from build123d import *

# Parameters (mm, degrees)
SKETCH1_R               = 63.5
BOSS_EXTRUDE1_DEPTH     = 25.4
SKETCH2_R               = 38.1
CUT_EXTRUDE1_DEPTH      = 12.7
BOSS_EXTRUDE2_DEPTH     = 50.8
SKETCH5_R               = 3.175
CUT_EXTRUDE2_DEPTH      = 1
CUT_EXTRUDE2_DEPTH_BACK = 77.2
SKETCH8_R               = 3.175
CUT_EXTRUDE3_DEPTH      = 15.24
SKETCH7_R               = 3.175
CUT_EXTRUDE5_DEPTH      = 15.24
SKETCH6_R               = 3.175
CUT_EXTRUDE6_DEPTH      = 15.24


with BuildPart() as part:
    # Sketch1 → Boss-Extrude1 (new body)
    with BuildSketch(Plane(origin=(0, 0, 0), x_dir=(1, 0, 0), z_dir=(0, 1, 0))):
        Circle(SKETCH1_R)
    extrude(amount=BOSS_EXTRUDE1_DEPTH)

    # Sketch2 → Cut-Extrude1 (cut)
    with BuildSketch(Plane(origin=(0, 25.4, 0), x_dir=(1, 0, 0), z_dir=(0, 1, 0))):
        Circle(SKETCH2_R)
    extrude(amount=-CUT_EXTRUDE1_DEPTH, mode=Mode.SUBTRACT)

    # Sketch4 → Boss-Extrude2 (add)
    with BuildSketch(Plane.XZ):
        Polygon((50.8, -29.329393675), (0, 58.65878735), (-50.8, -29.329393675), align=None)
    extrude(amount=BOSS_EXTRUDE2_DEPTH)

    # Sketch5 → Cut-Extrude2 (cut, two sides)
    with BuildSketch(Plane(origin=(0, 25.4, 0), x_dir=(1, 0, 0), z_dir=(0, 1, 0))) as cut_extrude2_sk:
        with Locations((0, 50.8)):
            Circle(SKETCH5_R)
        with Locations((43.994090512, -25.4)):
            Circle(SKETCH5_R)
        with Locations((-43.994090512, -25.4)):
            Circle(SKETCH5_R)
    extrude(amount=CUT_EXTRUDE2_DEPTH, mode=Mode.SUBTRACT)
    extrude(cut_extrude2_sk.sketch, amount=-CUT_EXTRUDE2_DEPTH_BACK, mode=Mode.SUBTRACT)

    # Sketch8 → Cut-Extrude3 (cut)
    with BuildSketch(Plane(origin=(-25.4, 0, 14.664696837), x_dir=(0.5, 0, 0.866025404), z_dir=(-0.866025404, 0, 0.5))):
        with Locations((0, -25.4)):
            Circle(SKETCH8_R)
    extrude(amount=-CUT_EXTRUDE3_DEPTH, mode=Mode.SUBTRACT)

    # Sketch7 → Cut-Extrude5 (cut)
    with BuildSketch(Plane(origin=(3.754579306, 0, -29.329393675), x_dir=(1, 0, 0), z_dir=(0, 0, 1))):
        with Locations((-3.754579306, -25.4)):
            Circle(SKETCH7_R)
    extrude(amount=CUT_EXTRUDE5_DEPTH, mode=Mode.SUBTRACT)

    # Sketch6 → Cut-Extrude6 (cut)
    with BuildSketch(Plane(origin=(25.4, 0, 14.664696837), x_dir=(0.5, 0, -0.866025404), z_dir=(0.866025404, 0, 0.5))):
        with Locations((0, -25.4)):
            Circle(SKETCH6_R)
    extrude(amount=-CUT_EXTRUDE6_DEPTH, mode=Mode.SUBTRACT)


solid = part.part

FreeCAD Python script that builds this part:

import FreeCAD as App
import Part
import Sketcher
from FreeCAD import Vector
Q = App.Units.Quantity


def add_polygon(sketch, points):
    """Adds a closed chain of lines whose ends are joined by coincident constraints."""
    first, n = sketch.GeometryCount, len(points)
    for a, b in zip(points, points[1:] + points[:1]):
        sketch.addGeometry(Part.LineSegment(App.Vector(*a, 0), App.Vector(*b, 0)), False)
    for i in range(n):
        sketch.addConstraint(Sketcher.Constraint("Coincident", first + i, 2, first + (i + 1) % n, 1))

doc = App.newDocument("Part")
body = doc.addObject("PartDesign::Body", "Body")

# Sketch on XZ plane
sketch1 = doc.addObject("Sketcher::SketchObject", "Sketch")
body.addObject(sketch1)
sketch1.AttachmentSupport = (doc.XZ_Plane, [""])
sketch1.MapMode = "FlatFace"
sketch1.addGeometry(Part.Circle(Vector(0, 0, 0), Vector(0, 0, 1), 64), False)
sketch1.addConstraint([
    Sketcher.Constraint("Coincident", 0, 3, -1, 1),
    Sketcher.Constraint("Diameter", 0, Q("5 in")),
])
pad1 = doc.addObject("PartDesign::Pad", "Pad")
body.addObject(pad1)
pad1.Profile = sketch1
pad1.Length = Q("1 in")
pad1.Reversed = True

# Sketch on XZ plane
sketch2 = doc.addObject("Sketcher::SketchObject", "Sketch001")
body.addObject(sketch2)
sketch2.AttachmentSupport = (doc.XZ_Plane, [""])
sketch2.MapMode = "FlatFace"
sketch2.AttachmentOffset = App.Placement(Vector(0, 0, -1 * 25.4), App.Rotation())
sketch2.addGeometry(Part.Circle(Vector(0, 0, 0), Vector(0, 0, 1), 38), False)
sketch2.addConstraint([
    Sketcher.Constraint("Coincident", 0, 3, -1, 1),
    Sketcher.Constraint("Diameter", 0, Q("3 in")),
])
pocket1 = doc.addObject("PartDesign::Pocket", "Pocket")
body.addObject(pocket1)
pocket1.Profile = sketch2
pocket1.Length = Q("0.5 in")
pocket1.Reversed = True

# Sketch on XZ plane
sketch3 = doc.addObject("Sketcher::SketchObject", "Sketch002")
body.addObject(sketch3)
sketch3.AttachmentSupport = (doc.XZ_Plane, [""])
sketch3.MapMode = "FlatFace"
add_polygon(sketch3, [(51, -29), (0, 59), (-51, -29)])  # lines 0-2
sketch3.addConstraint([
    Sketcher.Constraint("Horizontal", 2),
    Sketcher.Constraint("PointOnObject", 0, 2, -2),
    Sketcher.Constraint("Equal", 0, 1),
    Sketcher.Constraint("DistanceX", 2, 1, 2, 2, Q("4 in")),
    Sketcher.Constraint("Distance", 0, Q("4 in")),
    Sketcher.Constraint("DistanceY", -1, 1, 0, 2, Q("58.658787 mm")),
])
pad2 = doc.addObject("PartDesign::Pad", "Pad001")
body.addObject(pad2)
pad2.Profile = sketch3
pad2.Length = Q("2 in")

# Sketch on XZ plane
sketch4 = doc.addObject("Sketcher::SketchObject", "Sketch003")
body.addObject(sketch4)
sketch4.AttachmentSupport = (doc.XZ_Plane, [""])
sketch4.MapMode = "FlatFace"
sketch4.AttachmentOffset = App.Placement(Vector(0, 0, -1 * 25.4), App.Rotation())
sketch4.addGeometry([
    Part.Circle(Vector(0, -50.8, 0), Vector(0, 0, 1), 3.2),
    Part.Circle(Vector(44, 25.4, 0), Vector(0, 0, 1), 3.2),
    Part.Circle(Vector(-44, 25.4, 0), Vector(0, 0, 1), 3.2),
], False)
sketch4.addConstraint([
    Sketcher.Constraint("Equal", 0, 1),
    Sketcher.Constraint("Equal", 1, 2),
    Sketcher.Constraint("Symmetric", 1, 3, 2, 3, -2),
    Sketcher.Constraint("PointOnObject", 0, 3, -2),
    Sketcher.Constraint("Diameter", 0, Q("0.25 in")),
    Sketcher.Constraint("DistanceY", 0, 3, -1, 1, Q("2 in")),
    Sketcher.Constraint("DistanceY", -1, 1, 1, 3, Q("1 in")),
    Sketcher.Constraint("DistanceX", -1, 1, 1, 3, Q("43.994091 mm")),
])
pocket2 = doc.addObject("PartDesign::Pocket", "Pocket001")
body.addObject(pocket2)
pocket2.Profile = sketch4
pocket2.Type = "ThroughAll"
pocket2.Midplane = True

# Sketch on an angled plane
sketch5 = doc.addObject("Sketcher::SketchObject", "Sketch004")
body.addObject(sketch5)
sketch5.Placement = App.Placement(Vector(-25.4, 0, 14.664697), App.Rotation(Vector(0.5, 0, 0.866025404), Vector(0, 1, 0), Vector(-0.866025404, 0, 0.5), "ZXY"))
sketch5.addGeometry(Part.Circle(Vector(0, -25.4, 0), Vector(0, 0, 1), 3.2), False)
sketch5.addConstraint([
    Sketcher.Constraint("PointOnObject", 0, 3, -2),
    Sketcher.Constraint("Diameter", 0, Q("0.25 in")),
    Sketcher.Constraint("DistanceY", 0, 3, -1, 1, Q("1 in")),
])
pocket3 = doc.addObject("PartDesign::Pocket", "Pocket002")
body.addObject(pocket3)
pocket3.Profile = sketch5
pocket3.Length = Q("0.6 in")

# Sketch on XY plane
sketch6 = doc.addObject("Sketcher::SketchObject", "Sketch005")
body.addObject(sketch6)
sketch6.AttachmentSupport = (doc.XY_Plane, [""])
sketch6.MapMode = "FlatFace"
sketch6.AttachmentOffset = App.Placement(Vector(0, 0, -29.329394), App.Rotation())
sketch6.addGeometry(Part.Circle(Vector(0, -25.4, 0), Vector(0, 0, 1), 3.2), False)
sketch6.addConstraint([
    Sketcher.Constraint("PointOnObject", 0, 3, -2),
    Sketcher.Constraint("Diameter", 0, Q("0.25 in")),
    Sketcher.Constraint("DistanceY", 0, 3, -1, 1, Q("1 in")),
])
pocket4 = doc.addObject("PartDesign::Pocket", "Pocket003")
body.addObject(pocket4)
pocket4.Profile = sketch6
pocket4.Length = Q("0.6 in")
pocket4.Reversed = True

# Sketch on an angled plane
sketch7 = doc.addObject("Sketcher::SketchObject", "Sketch006")
body.addObject(sketch7)
sketch7.Placement = App.Placement(Vector(25.4, 0, 14.664697), App.Rotation(Vector(0.5, 0, -0.866025404), Vector(0, 1, 0), Vector(0.866025404, 0, 0.5), "ZXY"))
sketch7.addGeometry(Part.Circle(Vector(0, -25.4, 0), Vector(0, 0, 1), 3.2), False)
sketch7.addConstraint([
    Sketcher.Constraint("PointOnObject", 0, 3, -2),
    Sketcher.Constraint("Diameter", 0, Q("0.25 in")),
    Sketcher.Constraint("DistanceY", 0, 3, -1, 1, Q("1 in")),
])
pocket5 = doc.addObject("PartDesign::Pocket", "Pocket004")
body.addObject(pocket5)
pocket5.Profile = sketch7
pocket5.Length = Q("0.6 in")

doc.recompute()
